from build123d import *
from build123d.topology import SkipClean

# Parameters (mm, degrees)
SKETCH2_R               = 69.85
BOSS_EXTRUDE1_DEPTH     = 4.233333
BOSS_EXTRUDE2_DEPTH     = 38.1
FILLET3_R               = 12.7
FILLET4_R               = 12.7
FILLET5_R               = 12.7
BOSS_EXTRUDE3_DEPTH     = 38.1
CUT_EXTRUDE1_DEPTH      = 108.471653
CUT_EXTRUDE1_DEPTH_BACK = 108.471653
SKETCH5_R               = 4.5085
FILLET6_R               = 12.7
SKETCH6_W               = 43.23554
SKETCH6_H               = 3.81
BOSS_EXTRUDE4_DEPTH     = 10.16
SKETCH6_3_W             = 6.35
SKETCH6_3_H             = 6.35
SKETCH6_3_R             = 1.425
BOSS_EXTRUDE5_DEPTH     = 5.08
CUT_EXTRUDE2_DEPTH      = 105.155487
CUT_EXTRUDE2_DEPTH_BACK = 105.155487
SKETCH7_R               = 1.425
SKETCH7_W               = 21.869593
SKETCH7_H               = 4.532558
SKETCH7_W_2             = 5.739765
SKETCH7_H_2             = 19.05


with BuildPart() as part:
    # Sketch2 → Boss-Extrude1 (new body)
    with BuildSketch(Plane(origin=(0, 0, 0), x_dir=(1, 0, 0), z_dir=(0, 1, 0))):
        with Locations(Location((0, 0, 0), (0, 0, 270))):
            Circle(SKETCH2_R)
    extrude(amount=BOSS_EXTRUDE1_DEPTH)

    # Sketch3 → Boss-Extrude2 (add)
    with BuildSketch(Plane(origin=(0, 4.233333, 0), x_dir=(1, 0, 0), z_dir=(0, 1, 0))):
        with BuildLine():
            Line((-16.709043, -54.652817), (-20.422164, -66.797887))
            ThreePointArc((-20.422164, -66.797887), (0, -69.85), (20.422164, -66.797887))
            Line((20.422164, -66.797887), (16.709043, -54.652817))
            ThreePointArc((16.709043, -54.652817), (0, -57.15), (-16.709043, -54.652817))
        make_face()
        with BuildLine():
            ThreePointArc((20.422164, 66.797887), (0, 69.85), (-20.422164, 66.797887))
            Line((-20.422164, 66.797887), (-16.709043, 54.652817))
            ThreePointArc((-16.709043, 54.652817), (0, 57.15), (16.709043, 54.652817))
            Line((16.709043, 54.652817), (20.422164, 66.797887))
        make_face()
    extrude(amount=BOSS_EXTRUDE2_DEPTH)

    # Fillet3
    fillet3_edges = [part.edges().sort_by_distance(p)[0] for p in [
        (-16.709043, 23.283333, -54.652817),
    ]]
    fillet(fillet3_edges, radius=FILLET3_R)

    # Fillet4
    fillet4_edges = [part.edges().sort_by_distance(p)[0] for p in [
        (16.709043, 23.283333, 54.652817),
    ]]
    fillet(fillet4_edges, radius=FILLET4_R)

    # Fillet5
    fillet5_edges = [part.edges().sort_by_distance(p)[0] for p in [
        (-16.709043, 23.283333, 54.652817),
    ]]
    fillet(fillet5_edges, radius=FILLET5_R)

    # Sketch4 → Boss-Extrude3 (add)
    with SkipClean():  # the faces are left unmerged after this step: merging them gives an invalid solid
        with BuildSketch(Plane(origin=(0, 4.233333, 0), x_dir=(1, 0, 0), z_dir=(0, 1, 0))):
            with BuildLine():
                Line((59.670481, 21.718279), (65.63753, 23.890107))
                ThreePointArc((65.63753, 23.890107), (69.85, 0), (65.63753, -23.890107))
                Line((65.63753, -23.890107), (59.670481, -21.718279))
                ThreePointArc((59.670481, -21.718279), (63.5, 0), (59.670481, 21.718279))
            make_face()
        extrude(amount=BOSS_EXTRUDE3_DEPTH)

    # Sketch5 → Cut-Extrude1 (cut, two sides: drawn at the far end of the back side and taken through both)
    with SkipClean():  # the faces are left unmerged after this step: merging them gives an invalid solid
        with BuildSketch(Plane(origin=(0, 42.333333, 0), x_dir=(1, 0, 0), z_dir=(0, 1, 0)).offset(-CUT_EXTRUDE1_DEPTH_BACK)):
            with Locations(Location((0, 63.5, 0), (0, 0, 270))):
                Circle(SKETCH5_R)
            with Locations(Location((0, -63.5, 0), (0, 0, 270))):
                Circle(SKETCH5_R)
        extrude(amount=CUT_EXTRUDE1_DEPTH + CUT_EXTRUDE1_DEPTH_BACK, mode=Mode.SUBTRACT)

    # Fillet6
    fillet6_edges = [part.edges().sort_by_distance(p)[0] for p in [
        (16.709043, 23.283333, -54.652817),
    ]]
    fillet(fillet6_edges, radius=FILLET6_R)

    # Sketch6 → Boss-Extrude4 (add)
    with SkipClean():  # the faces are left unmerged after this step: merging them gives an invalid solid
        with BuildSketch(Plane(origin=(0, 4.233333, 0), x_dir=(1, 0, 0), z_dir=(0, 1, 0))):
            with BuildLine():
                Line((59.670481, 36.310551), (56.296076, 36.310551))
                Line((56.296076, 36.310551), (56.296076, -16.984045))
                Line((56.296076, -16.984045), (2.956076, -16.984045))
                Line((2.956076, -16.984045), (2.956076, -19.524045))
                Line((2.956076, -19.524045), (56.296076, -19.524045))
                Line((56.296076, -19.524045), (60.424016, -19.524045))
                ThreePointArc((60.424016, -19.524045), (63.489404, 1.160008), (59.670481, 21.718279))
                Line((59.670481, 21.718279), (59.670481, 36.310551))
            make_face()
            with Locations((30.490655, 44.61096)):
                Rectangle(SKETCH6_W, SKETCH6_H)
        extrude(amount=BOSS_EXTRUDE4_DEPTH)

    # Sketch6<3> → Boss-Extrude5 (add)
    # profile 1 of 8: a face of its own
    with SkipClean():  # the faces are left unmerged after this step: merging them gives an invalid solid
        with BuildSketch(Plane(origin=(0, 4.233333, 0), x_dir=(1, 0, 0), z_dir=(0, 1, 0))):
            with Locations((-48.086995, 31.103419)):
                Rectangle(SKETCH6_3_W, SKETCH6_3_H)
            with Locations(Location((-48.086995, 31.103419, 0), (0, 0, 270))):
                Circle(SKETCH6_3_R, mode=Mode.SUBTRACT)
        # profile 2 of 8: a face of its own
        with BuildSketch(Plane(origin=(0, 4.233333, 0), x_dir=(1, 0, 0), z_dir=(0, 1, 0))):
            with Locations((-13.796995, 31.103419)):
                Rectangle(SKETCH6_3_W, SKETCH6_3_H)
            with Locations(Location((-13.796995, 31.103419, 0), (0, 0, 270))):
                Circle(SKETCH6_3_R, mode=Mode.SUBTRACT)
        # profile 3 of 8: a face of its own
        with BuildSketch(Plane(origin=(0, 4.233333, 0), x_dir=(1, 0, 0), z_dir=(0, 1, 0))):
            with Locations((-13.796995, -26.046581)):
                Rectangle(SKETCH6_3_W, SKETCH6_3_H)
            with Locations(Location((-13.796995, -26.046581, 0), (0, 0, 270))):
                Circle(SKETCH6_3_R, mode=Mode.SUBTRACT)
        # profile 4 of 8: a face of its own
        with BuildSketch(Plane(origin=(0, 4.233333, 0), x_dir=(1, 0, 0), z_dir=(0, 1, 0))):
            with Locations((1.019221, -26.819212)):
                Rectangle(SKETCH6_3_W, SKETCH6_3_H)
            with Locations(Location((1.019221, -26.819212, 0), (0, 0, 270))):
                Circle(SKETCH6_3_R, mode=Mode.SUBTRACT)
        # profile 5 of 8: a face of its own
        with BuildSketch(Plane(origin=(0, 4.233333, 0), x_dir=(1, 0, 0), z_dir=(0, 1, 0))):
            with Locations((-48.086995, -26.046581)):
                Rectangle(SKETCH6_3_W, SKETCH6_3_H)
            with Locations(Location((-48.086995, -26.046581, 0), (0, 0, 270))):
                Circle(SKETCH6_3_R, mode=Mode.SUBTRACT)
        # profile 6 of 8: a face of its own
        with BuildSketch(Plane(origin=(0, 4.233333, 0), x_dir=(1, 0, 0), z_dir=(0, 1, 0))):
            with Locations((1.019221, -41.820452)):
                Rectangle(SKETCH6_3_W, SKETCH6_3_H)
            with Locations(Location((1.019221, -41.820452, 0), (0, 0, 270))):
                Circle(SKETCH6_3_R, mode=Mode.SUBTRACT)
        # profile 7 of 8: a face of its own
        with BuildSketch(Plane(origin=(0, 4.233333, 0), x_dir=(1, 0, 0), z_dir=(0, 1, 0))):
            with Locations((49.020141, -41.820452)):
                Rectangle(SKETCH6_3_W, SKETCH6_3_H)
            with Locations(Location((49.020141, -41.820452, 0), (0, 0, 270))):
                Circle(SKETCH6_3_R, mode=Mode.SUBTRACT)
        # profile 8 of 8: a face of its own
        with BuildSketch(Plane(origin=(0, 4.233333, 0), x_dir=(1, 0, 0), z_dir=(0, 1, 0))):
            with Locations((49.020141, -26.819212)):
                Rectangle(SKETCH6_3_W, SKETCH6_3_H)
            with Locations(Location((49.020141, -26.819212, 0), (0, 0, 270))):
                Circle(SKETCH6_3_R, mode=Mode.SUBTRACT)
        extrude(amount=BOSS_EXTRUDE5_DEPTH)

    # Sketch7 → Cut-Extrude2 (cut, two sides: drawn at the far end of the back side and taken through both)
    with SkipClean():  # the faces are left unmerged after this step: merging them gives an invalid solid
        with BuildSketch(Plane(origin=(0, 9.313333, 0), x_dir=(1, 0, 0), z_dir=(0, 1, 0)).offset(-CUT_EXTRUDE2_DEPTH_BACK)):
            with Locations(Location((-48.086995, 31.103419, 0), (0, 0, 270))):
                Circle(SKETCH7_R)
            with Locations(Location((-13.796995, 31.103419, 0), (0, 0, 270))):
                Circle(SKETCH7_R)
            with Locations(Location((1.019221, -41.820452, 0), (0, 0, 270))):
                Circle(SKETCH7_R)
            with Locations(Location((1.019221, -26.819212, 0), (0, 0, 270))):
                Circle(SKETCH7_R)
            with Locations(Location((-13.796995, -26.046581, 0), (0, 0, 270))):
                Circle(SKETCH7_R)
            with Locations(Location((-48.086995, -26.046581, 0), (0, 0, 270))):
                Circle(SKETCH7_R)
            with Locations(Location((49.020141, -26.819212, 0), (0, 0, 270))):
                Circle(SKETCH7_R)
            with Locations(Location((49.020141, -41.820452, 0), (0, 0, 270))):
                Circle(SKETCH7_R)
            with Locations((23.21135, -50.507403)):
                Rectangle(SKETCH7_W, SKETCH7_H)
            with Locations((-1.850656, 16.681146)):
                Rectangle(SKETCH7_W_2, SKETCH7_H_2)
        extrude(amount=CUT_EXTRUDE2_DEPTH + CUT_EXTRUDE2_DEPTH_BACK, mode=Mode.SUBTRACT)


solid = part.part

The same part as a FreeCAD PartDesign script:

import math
import FreeCAD as App
import Part
import Sketcher

V = App.Vector
Q = App.Units.Quantity


def edges_at(feature, points):
    """Names of the edges that pass closest to the given points."""
    edges = feature.Shape.Edges
    near = lambda p: min(range(len(edges)), key=lambda i: edges[i].distToShape(Part.Vertex(*p))[0])
    return sorted({f"Edge{near(p) + 1}" for p in points})


def add_polygon(sketch, points):
    """Adds a closed chain of lines whose ends are joined by coincident constraints."""
    first, n = sketch.GeometryCount, len(points)
    for a, b in zip(points, points[1:] + points[:1]):
        sketch.addGeometry(Part.LineSegment(App.Vector(*a, 0), App.Vector(*b, 0)), False)
    for i in range(n):
        sketch.addConstraint(Sketcher.Constraint("Coincident", first + i, 2, first + (i + 1) % n, 1))

doc = App.newDocument("Part")
body = doc.addObject("PartDesign::Body", "Body")

# Sketch on XZ plane
sketch1 = doc.addObject("Sketcher::SketchObject", "Sketch")
body.addObject(sketch1)
sketch1.AttachmentSupport = (doc.XZ_Plane, [""])
sketch1.MapMode = "FlatFace"
sketch1.addGeometry(Part.Circle(V(0, 0, 0), V(0, 0, 1), 70), False)
sketch1.addConstraint(Sketcher.Constraint("Coincident", 0, 3, -1, 1))
sketch1.addConstraint(Sketcher.Constraint("Diameter", 0, Q("5.5 in")))
pad1 = doc.addObject("PartDesign::Pad", "Pad")
body.addObject(pad1)
pad1.Profile = sketch1
pad1.Length = 4.233333
pad1.Reversed = True

# Sketch on XZ plane
sketch2 = doc.addObject("Sketcher::SketchObject", "Sketch001")
body.addObject(sketch2)
sketch2.AttachmentSupport = (doc.XZ_Plane, [""])
sketch2.MapMode = "FlatFace"
sketch2.AttachmentOffset = App.Placement(V(0, 0, -4.233333), App.Rotation())
sketch2.addGeometry(Part.LineSegment(V(-17, 55, 0), V(-20, 67, 0)), False)
sketch2.addGeometry(Part.ArcOfCircle(Part.Circle(V(0, 0, 0), V(0, 0, 1), 70), math.radians(73), math.radians(107)), False)
sketch2.addGeometry(Part.LineSegment(V(20, 67, 0), V(17, 55, 0)), False)
sketch2.addGeometry(Part.ArcOfCircle(Part.Circle(V(0, 0, 0), V(0, 0, 1), 57), math.radians(73), math.radians(107)), False)
sketch2.addGeometry(Part.ArcOfCircle(Part.Circle(V(0, 0, 0), V(0, 0, 1), 70), math.radians(-107), math.radians(-73)), False)
sketch2.addGeometry(Part.LineSegment(V(-20, -67, 0), V(-17, -55, 0)), False)
sketch2.addGeometry(Part.ArcOfCircle(Part.Circle(V(0, 0, 0), V(0, 0, 1), 57), math.radians(-107), math.radians(-73)), False)
sketch2.addGeometry(Part.LineSegment(V(17, -55, 0), V(20, -67, 0)), False)
sketch2.addConstraint(Sketcher.Constraint("Coincident", 0, 2, 1, 2))
sketch2.addConstraint(Sketcher.Constraint("Coincident", 1, 1, 2, 1))
sketch2.addConstraint(Sketcher.Constraint("Coincident", 2, 2, 3, 1))
sketch2.addConstraint(Sketcher.Constraint("Coincident", 3, 2, 0, 1))
sketch2.addConstraint(Sketcher.Constraint("Coincident", 4, 1, 5, 1))
sketch2.addConstraint(Sketcher.Constraint("Coincident", 5, 2, 6, 1))
sketch2.addConstraint(Sketcher.Constraint("Coincident", 6, 2, 7, 1))
sketch2.addConstraint(Sketcher.Constraint("Coincident", 7, 2, 4, 2))
sketch2.addConstraint(Sketcher.Constraint("Coincident", 1, 3, -1, 1))
sketch2.addConstraint(Sketcher.Constraint("Coincident", 3, 3, -1, 1))
sketch2.addConstraint(Sketcher.Constraint("Coincident", 4, 3, -1, 1))
sketch2.addConstraint(Sketcher.Constraint("Coincident", 6, 3, -1, 1))
sketch2.addConstraint(Sketcher.Constraint("Equal", 1, 4))
sketch2.addConstraint(Sketcher.Constraint("Equal", 3, 6))
sketch2.addConstraint(Sketcher.Constraint("Parallel", 2, 5))
sketch2.addConstraint(Sketcher.Constraint("Parallel", 0, 7))
sketch2.addConstraint(Sketcher.Constraint("Horizontal", 0, 2, 1, 1))
sketch2.addConstraint(Sketcher.Constraint("Horizontal", 2, 2, 3, 2))
sketch2.addConstraint(Sketcher.Constraint("Horizontal", 5, 2, 6, 2))
sketch2.addConstraint(Sketcher.Constraint("Vertical", 0, 2, 4, 1))
sketch2.addConstraint(Sketcher.Constraint("Radius", 1, Q("2.7499999 in")))
sketch2.addConstraint(Sketcher.Constraint("Radius", 3, Q("2.2500002 in")))
sketch2.addConstraint(Sketcher.Constraint("Angle", 0, Q("107.000002 deg")))
sketch2.addConstraint(Sketcher.Constraint("DistanceY", 4, 3, 0, 2, Q("66.797889 mm")))
pad2 = doc.addObject("PartDesign::Pad", "Pad001")
body.addObject(pad2)
pad2.Profile = sketch2
pad2.Length = Q("1.5 in")
pad2.Reversed = True
doc.recompute()

fillet = doc.addObject("PartDesign::Fillet", "Fillet")
body.addObject(fillet)
fillet.Base = (pad2, edges_at(pad2, [(-16.709, 23.283, -54.653)]))
fillet.Radius = Q("0.5 in")
doc.recompute()

fillet2 = doc.addObject("PartDesign::Fillet", "Fillet001")
body.addObject(fillet2)
fillet2.Base = (fillet, edges_at(fillet, [(16.709, 23.283, 54.653)]))
fillet2.Radius = Q("0.5 in")
doc.recompute()

fillet3 = doc.addObject("PartDesign::Fillet", "Fillet002")
body.addObject(fillet3)
fillet3.Base = (fillet2, edges_at(fillet2, [(-16.709, 23.283, 54.653)]))
fillet3.Radius = Q("0.5 in")

# Sketch on XZ plane
sketch3 = doc.addObject("Sketcher::SketchObject", "Sketch002")
body.addObject(sketch3)
sketch3.AttachmentSupport = (doc.XZ_Plane, [""])
sketch3.MapMode = "FlatFace"
sketch3.AttachmentOffset = App.Placement(V(0, 0, -4.233333), App.Rotation())
sketch3.addGeometry(Part.LineSegment(V(66, -24, 0), V(60, -22, 0)), False)
sketch3.addGeometry(Part.ArcOfCircle(Part.Circle(V(0, 0, 0), V(0, 0, 1), 63), math.radians(-20), math.radians(20)), False)
sketch3.addGeometry(Part.LineSegment(V(60, 22, 0), V(66, 24, 0)), False)
sketch3.addGeometry(Part.ArcOfCircle(Part.Circle(V(0, 0, 0), V(0, 0, 1), 70), math.radians(-20), math.radians(20)), False)
sketch3.addConstraint(Sketcher.Constraint("Coincident", 0, 2, 1, 1))
sketch3.addConstraint(Sketcher.Constraint("Coincident", 1, 2, 2, 1))
sketch3.addConstraint(Sketcher.Constraint("Coincident", 2, 2, 3, 2))
sketch3.addConstraint(Sketcher.Constraint("Coincident", 3, 1, 0, 1))
sketch3.addConstraint(Sketcher.Constraint("Coincident", 1, 3, -1, 1))
sketch3.addConstraint(Sketcher.Constraint("Coincident", 3, 3, -1, 1))
sketch3.addConstraint(Sketcher.Constraint("Vertical", 0, 2, 1, 2))
sketch3.addConstraint(Sketcher.Constraint("Vertical", 2, 2, 3, 1))
sketch3.addConstraint(Sketcher.Constraint("Angle", 0, Q("160.000002 deg")))
sketch3.addConstraint(Sketcher.Constraint("Distance", 0, Q("0.25 in")))
sketch3.addConstraint(Sketcher.Constraint("Radius", 1, Q("63.499993 mm")))
sketch3.addConstraint(Sketcher.Constraint("DistanceX", -1, 1, 0, 2, Q("59.670481 mm")))
pad3 = doc.addObject("PartDesign::Pad", "Pad002")
body.addObject(pad3)
pad3.Profile = sketch3
pad3.Length = Q("1.5 in")
pad3.Reversed = True

# Sketch on XZ plane
sketch4 = doc.addObject("Sketcher::SketchObject", "Sketch003")
body.addObject(sketch4)
sketch4.AttachmentSupport = (doc.XZ_Plane, [""])
sketch4.MapMode = "FlatFace"
sketch4.AttachmentOffset = App.Placement(V(0, 0, -42.333333), App.Rotation())
sketch4.addGeometry(Part.Circle(V(0, -63.5, 0), V(0, 0, 1), 4.5), False)
sketch4.addGeometry(Part.Circle(V(0, 63.5, 0), V(0, 0, 1), 4.5), False)
sketch4.addConstraint(Sketcher.Constraint("Equal", 0, 1))
sketch4.addConstraint(Sketcher.Constraint("Symmetric", 0, 3, 1, 3, -1, 1))
sketch4.addConstraint(Sketcher.Constraint("PointOnObject", 0, 3, -2))
sketch4.addConstraint(Sketcher.Constraint("Diameter", 0, Q("0.355 in")))
sketch4.addConstraint(Sketcher.Constraint("DistanceY", 0, 3, 1, 3, Q("5 in")))
pocket1 = doc.addObject("PartDesign::Pocket", "Pocket")
body.addObject(pocket1)
pocket1.Profile = sketch4
pocket1.Type = "ThroughAll"
pocket1.Midplane = True
doc.recompute()

fillet4 = doc.addObject("PartDesign::Fillet", "Fillet003")
body.addObject(fillet4)
fillet4.Base = (pocket1, edges_at(pocket1, [(16.709, 23.283, -54.653)]))
fillet4.Radius = Q("0.5 in")

# Sketch on XZ plane
sketch5 = doc.addObject("Sketcher::SketchObject", "Sketch004")
body.addObject(sketch5)
sketch5.AttachmentSupport = (doc.XZ_Plane, [""])
sketch5.MapMode = "FlatFace"
sketch5.AttachmentOffset = App.Placement(V(0, 0, -4.233333), App.Rotation())
sketch5.addGeometry(Part.LineSegment(V(59.7, -36.3, 0), V(56.3, -36.3, 0)), False)  # 0
sketch5.addGeometry(Part.LineSegment(V(56.3, -36.3, 0), V(56.3, 17, 0)), False)  # 1
sketch5.addGeometry(Part.LineSegment(V(56.3, 17, 0), V(3, 17, 0)), False)  # 2
sketch5.addGeometry(Part.LineSegment(V(3, 17, 0), V(3, 19.5, 0)), False)  # 3
sketch5.addGeometry(Part.LineSegment(V(3, 19.5, 0), V(60.4, 19.5, 0)), False)  # 4
sketch5.addGeometry(Part.ArcOfCircle(Part.Circle(V(0, 0, 0), V(0, 0, 1), 63.5), math.radians(-20), math.radians(18)), False)  # 5
sketch5.addGeometry(Part.LineSegment(V(59.7, -21.7, 0), V(59.7, -36.3, 0)), False)  # 6
add_polygon(sketch5, [(8.9, -46.5), (8.9, -42.7), (52.1, -42.7), (52.1, -46.5)])  # lines 7-10
sketch5.addConstraint(Sketcher.Constraint("Coincident", 0, 2, 1, 1))
sketch5.addConstraint(Sketcher.Constraint("Coincident", 1, 2, 2, 1))
sketch5.addConstraint(Sketcher.Constraint("Coincident", 2, 2, 3, 1))
sketch5.addConstraint(Sketcher.Constraint("Coincident", 3, 2, 4, 1))
sketch5.addConstraint(Sketcher.Constraint("Coincident", 4, 2, 5, 2))
sketch5.addConstraint(Sketcher.Constraint("Coincident", 5, 1, 6, 1))
sketch5.addConstraint(Sketcher.Constraint("Coincident", 6, 2, 0, 1))
sketch5.addConstraint(Sketcher.Constraint("Horizontal", 0))
sketch5.addConstraint(Sketcher.Constraint("Vertical", 1))
sketch5.addConstraint(Sketcher.Constraint("Horizontal", 2))
sketch5.addConstraint(Sketcher.Constraint("Vertical", 3))
sketch5.addConstraint(Sketcher.Constraint("Horizontal", 4))
sketch5.addConstraint(Sketcher.Constraint("Vertical", 6))
sketch5.addConstraint(Sketcher.Constraint("Vertical", 7))
sketch5.addConstraint(Sketcher.Constraint("Horizontal", 8))
sketch5.addConstraint(Sketcher.Constraint("Vertical", 9))
sketch5.addConstraint(Sketcher.Constraint("Horizontal", 10))
sketch5.addConstraint(Sketcher.Constraint("Coincident", 5, 3, -1, 1))
sketch5.addConstraint(Sketcher.Constraint("DistanceX", 2, 2, 2, 1, Q("2.1 in")))
sketch5.addConstraint(Sketcher.Constraint("DistanceY", 3, 1, 3, 2, Q("0.1 in")))
sketch5.addConstraint(Sketcher.Constraint("DistanceY", 7, 1, 7, 2, Q("0.15 in")))
sketch5.addConstraint(Sketcher.Constraint("DistanceY", 7, 2, 2, 2, Q("2.3500002 in")))
sketch5.addConstraint(Sketcher.Constraint("Radius", 5, Q("63.499994 mm")))
sketch5.addConstraint(Sketcher.Constraint("DistanceX", 4, 1, 4, 2, Q("57.46794 mm")))
sketch5.addConstraint(Sketcher.Constraint("DistanceX", 8, 1, 8, 2, Q("43.23554 mm")))
sketch5.addConstraint(Sketcher.Constraint("DistanceY", 6, 2, 6, 1, Q("14.592272 mm")))
sketch5.addConstraint(Sketcher.Constraint("DistanceX", 0, 2, 0, 1, Q("3.374405 mm")))
sketch5.addConstraint(Sketcher.Constraint("DistanceY", 1, 1, 1, 2, Q("53.294596 mm")))
sketch5.addConstraint(Sketcher.Constraint("DistanceX", 5, 3, 7, 2, Q("8.872878 mm")))
pad4 = doc.addObject("PartDesign::Pad", "Pad003")
body.addObject(pad4)
pad4.Profile = sketch5
pad4.Length = Q("0.4 in")
pad4.Reversed = True

# Sketch on XZ plane
sketch6 = doc.addObject("Sketcher::SketchObject", "Sketch005")
body.addObject(sketch6)
sketch6.AttachmentSupport = (doc.XZ_Plane, [""])
sketch6.MapMode = "FlatFace"
sketch6.AttachmentOffset = App.Placement(V(0, 0, -4.233333), App.Rotation())
add_polygon(sketch6, [(-51.3, -34.3), (-51.3, -27.9), (-44.9, -27.9), (-44.9, -34.3)])  # lines 0-3
sketch6.addGeometry(Part.Circle(V(-48.1, -31.1, 0), V(0, 0, 1), 1.4), False)  # 4
add_polygon(sketch6, [(-17, -34.3), (-17, -27.9), (-10.6, -27.9), (-10.6, -34.3)])  # lines 5-8
sketch6.addGeometry(Part.Circle(V(-13.8, -31.1, 0), V(0, 0, 1), 1.4), False)  # 9
add_polygon(sketch6, [(-17, 22.9), (-17, 29.2), (-10.6, 29.2), (-10.6, 22.9)])  # lines 10-13
sketch6.addGeometry(Part.Circle(V(-13.8, 26, 0), V(0, 0, 1), 1.4), False)  # 14
add_polygon(sketch6, [(-2.2, 23.6), (-2.2, 30), (4.2, 30), (4.2, 23.6)])  # lines 15-18
sketch6.addGeometry(Part.Circle(V(1, 26.8, 0), V(0, 0, 1), 1.4), False)  # 19
add_polygon(sketch6, [(-51.3, 22.9), (-51.3, 29.2), (-44.9, 29.2), (-44.9, 22.9)])  # lines 20-23
sketch6.addGeometry(Part.Circle(V(-48.1, 26, 0), V(0, 0, 1), 1.4), False)  # 24
add_polygon(sketch6, [(-2.2, 38.6), (-2.2, 45), (4.2, 45), (4.2, 38.6)])  # lines 25-28
sketch6.addGeometry(Part.Circle(V(1, 41.8, 0), V(0, 0, 1), 1.4), False)  # 29
add_polygon(sketch6, [(45.8, 38.6), (45.8, 45), (52.2, 45), (52.2, 38.6)])  # lines 30-33
sketch6.addGeometry(Part.Circle(V(49, 41.8, 0), V(0, 0, 1), 1.4), False)  # 34
add_polygon(sketch6, [(45.8, 23.6), (45.8, 30), (52.2, 30), (52.2, 23.6)])  # lines 35-38
sketch6.addGeometry(Part.Circle(V(49, 26.8, 0), V(0, 0, 1), 1.4), False)  # 39
sketch6.addConstraint(Sketcher.Constraint("Vertical", 0))
sketch6.addConstraint(Sketcher.Constraint("Horizontal", 1))
sketch6.addConstraint(Sketcher.Constraint("Vertical", 2))
sketch6.addConstraint(Sketcher.Constraint("Horizontal", 3))
sketch6.addConstraint(Sketcher.Constraint("Vertical", 5))
sketch6.addConstraint(Sketcher.Constraint("Horizontal", 6))
sketch6.addConstraint(Sketcher.Constraint("Vertical", 7))
sketch6.addConstraint(Sketcher.Constraint("Horizontal", 8))
sketch6.addConstraint(Sketcher.Constraint("Vertical", 10))
sketch6.addConstraint(Sketcher.Constraint("Horizontal", 11))
sketch6.addConstraint(Sketcher.Constraint("Vertical", 12))
sketch6.addConstraint(Sketcher.Constraint("Horizontal", 13))
sketch6.addConstraint(Sketcher.Constraint("Vertical", 15))
sketch6.addConstraint(Sketcher.Constraint("Horizontal", 16))
sketch6.addConstraint(Sketcher.Constraint("Vertical", 17))
sketch6.addConstraint(Sketcher.Constraint("Horizontal", 18))
sketch6.addConstraint(Sketcher.Constraint("Vertical", 20))
sketch6.addConstraint(Sketcher.Constraint("Horizontal", 21))
sketch6.addConstraint(Sketcher.Constraint("Vertical", 22))
sketch6.addConstraint(Sketcher.Constraint("Horizontal", 23))
sketch6.addConstraint(Sketcher.Constraint("Vertical", 25))
sketch6.addConstraint(Sketcher.Constraint("Horizontal", 26))
sketch6.addConstraint(Sketcher.Constraint("Vertical", 27))
sketch6.addConstraint(Sketcher.Constraint("Horizontal", 28))
sketch6.addConstraint(Sketcher.Constraint("Vertical", 30))
sketch6.addConstraint(Sketcher.Constraint("Horizontal", 31))
sketch6.addConstraint(Sketcher.Constraint("Vertical", 32))
sketch6.addConstraint(Sketcher.Constraint("Horizontal", 33))
sketch6.addConstraint(Sketcher.Constraint("Vertical", 35))
sketch6.addConstraint(Sketcher.Constraint("Horizontal", 36))
sketch6.addConstraint(Sketcher.Constraint("Vertical", 37))
sketch6.addConstraint(Sketcher.Constraint("Horizontal", 38))
sketch6.addConstraint(Sketcher.Constraint("Equal", 4, 9))
sketch6.addConstraint(Sketcher.Constraint("Equal", 9, 14))
sketch6.addConstraint(Sketcher.Constraint("Equal", 14, 19))
sketch6.addConstraint(Sketcher.Constraint("Equal", 19, 24))
sketch6.addConstraint(Sketcher.Constraint("Equal", 24, 29))
sketch6.addConstraint(Sketcher.Constraint("Equal", 29, 34))
sketch6.addConstraint(Sketcher.Constraint("Equal", 34, 39))
sketch6.addConstraint(Sketcher.Constraint("Horizontal", 4, 3, 9, 3))
sketch6.addConstraint(Sketcher.Constraint("Horizontal", 14, 3, 24, 3))
sketch6.addConstraint(Sketcher.Constraint("Horizontal", 29, 3, 34, 3))
sketch6.addConstraint(Sketcher.Constraint("Horizontal", 19, 3, 39, 3))
sketch6.addConstraint(Sketcher.Constraint("Horizontal", 1, 2, 5, 2))
sketch6.addConstraint(Sketcher.Constraint("Horizontal", 3, 2, 7, 2))
sketch6.addConstraint(Sketcher.Constraint("Horizontal", 11, 2, 20, 2))
sketch6.addConstraint(Sketcher.Constraint("Horizontal", 13, 2, 22, 2))
sketch6.addConstraint(Sketcher.Constraint("Horizontal", 26, 2, 30, 2))
sketch6.addConstraint(Sketcher.Constraint("Horizontal", 28, 2, 32, 2))
sketch6.addConstraint(Sketcher.Constraint("Horizontal", 16, 2, 35, 2))
sketch6.addConstraint(Sketcher.Constraint("Horizontal", 18, 2, 37, 2))
sketch6.addConstraint(Sketcher.Constraint("Vertical", 9, 3, 14, 3))
sketch6.addConstraint(Sketcher.Constraint("Vertical", 4, 3, 24, 3))
sketch6.addConstraint(Sketcher.Constraint("Vertical", 19, 3, 29, 3))
sketch6.addConstraint(Sketcher.Constraint("Vertical", 34, 3, 39, 3))
sketch6.addConstraint(Sketcher.Constraint("Vertical", 8, 2, 10, 2))
sketch6.addConstraint(Sketcher.Constraint("Vertical", 7, 2, 11, 2))
sketch6.addConstraint(Sketcher.Constraint("Vertical", 3, 2, 20, 2))
sketch6.addConstraint(Sketcher.Constraint("Vertical", 2, 2, 21, 2))
sketch6.addConstraint(Sketcher.Constraint("Vertical", 18, 2, 25, 2))
sketch6.addConstraint(Sketcher.Constraint("Vertical", 17, 2, 26, 2))
sketch6.addConstraint(Sketcher.Constraint("Vertical", 33, 2, 35, 2))
sketch6.addConstraint(Sketcher.Constraint("Vertical", 32, 2, 36, 2))
sketch6.addConstraint(Sketcher.Constraint("Equal", 3, 6))
sketch6.addConstraint(Sketcher.Constraint("Equal", 13, 16))
sketch6.addConstraint(Sketcher.Constraint("Equal", 28, 31))
sketch6.addConstraint(Sketcher.Constraint("Equal", 38, 0))
sketch6.addConstraint(Sketcher.Constraint("Equal", 7, 10))
sketch6.addConstraint(Sketcher.Constraint("Equal", 12, 15))
sketch6.addConstraint(Sketcher.Constraint("Equal", 22, 25))
sketch6.addConstraint(Sketcher.Constraint("DistanceX", 1, 1, 1, 2, Q("0.25 in")))
sketch6.addConstraint(Sketcher.Constraint("DistanceX", 1, 2, 5, 2, Q("1.1 in")))
sketch6.addConstraint(Sketcher.Constraint("Diameter", 4, Q("2.85 mm")))
sketch6.addConstraint(Sketcher.Constraint("DistanceX", 4, 3, 9, 3, Q("1.35 in")))
sketch6.addConstraint(Sketcher.Constraint("DistanceY", 9, 3, 14, 3, Q("2.25 in")))
sketch6.addConstraint(Sketcher.Constraint("DistanceY", 5, 2, 10, 2, Q("2.25 in")))
sketch6.addConstraint(Sketcher.Constraint("DistanceX", 0, 2, 4, 3, Q("0.125 in")))
sketch6.addConstraint(Sketcher.Constraint("DistanceY", 4, 3, 0, 2, Q("0.125 in")))
sketch6.addConstraint(Sketcher.Constraint("DistanceX", 15, 2, 19, 3, Q("0.125 in")))
sketch6.addConstraint(Sketcher.Constraint("DistanceY", 19, 3, 15, 2, Q("0.125 in")))
sketch6.addConstraint(Sketcher.Constraint("DistanceY", 29, 3, 25, 2, Q("0.125 in")))
sketch6.addConstraint(Sketcher.Constraint("DistanceX", 30, 2, 34, 3, Q("0.125 in")))
sketch6.addConstraint(Sketcher.Constraint("DistanceY", 19, 3, 29, 3, Q("0.5906 in")))
sketch6.addConstraint(Sketcher.Constraint("DistanceX", 29, 3, 34, 3, Q("1.8898 in")))
sketch6.addConstraint(Sketcher.Constraint("DistanceY", 4, 3, -1, 1, Q("31.103419 mm")))
sketch6.addConstraint(Sketcher.Constraint("DistanceX", -1, 1, 19, 3, Q("1.019221 mm")))
sketch6.addConstraint(Sketcher.Constraint("DistanceY", -1, 1, 19, 3, Q("26.819212 mm")))
sketch6.addConstraint(Sketcher.Constraint("DistanceX", 4, 3, -1, 1, Q("48.086995 mm")))
pad5 = doc.addObject("PartDesign::Pad", "Pad004")
body.addObject(pad5)
pad5.Profile = sketch6
pad5.Length = Q("0.2 in")
pad5.Reversed = True

# Sketch on XZ plane
sketch7 = doc.addObject("Sketcher::SketchObject", "Sketch006")
body.addObject(sketch7)
sketch7.AttachmentSupport = (doc.XZ_Plane, [""])
sketch7.MapMode = "FlatFace"
sketch7.AttachmentOffset = App.Placement(V(0, 0, -9.313333), App.Rotation())
sketch7.addGeometry(Part.Circle(V(-48.1, -31.1, 0), V(0, 0, 1), 1.4), False)  # 0
sketch7.addGeometry(Part.Circle(V(-13.8, -31.1, 0), V(0, 0, 1), 1.4), False)  # 1
sketch7.addGeometry(Part.Circle(V(1, 41.8, 0), V(0, 0, 1), 1.4), False)  # 2
sketch7.addGeometry(Part.Circle(V(1, 26.8, 0), V(0, 0, 1), 1.4), False)  # 3
sketch7.addGeometry(Part.Circle(V(-13.8, 26, 0), V(0, 0, 1), 1.4), False)  # 4
sketch7.addGeometry(Part.Circle(V(-48.1, 26, 0), V(0, 0, 1), 1.4), False)  # 5
sketch7.addGeometry(Part.Circle(V(49, 26.8, 0), V(0, 0, 1), 1.4), False)  # 6
sketch7.addGeometry(Part.Circle(V(49, 41.8, 0), V(0, 0, 1), 1.4), False)  # 7
add_polygon(sketch7, [(12.3, 48.2), (12.3, 52.8), (34.1, 52.8), (34.1, 48.2)])  # lines 8-11
add_polygon(sketch7, [(-4.7, -26.2), (-4.7, -7.2), (1, -7.2), (1, -26.2)])  # lines 12-15
sketch7.addConstraint(Sketcher.Constraint("Vertical", 8))
sketch7.addConstraint(Sketcher.Constraint("Horizontal", 9))
sketch7.addConstraint(Sketcher.Constraint("Vertical", 10))
sketch7.addConstraint(Sketcher.Constraint("Horizontal", 11))
sketch7.addConstraint(Sketcher.Constraint("Vertical", 12))
sketch7.addConstraint(Sketcher.Constraint("Horizontal", 13))
sketch7.addConstraint(Sketcher.Constraint("Vertical", 14))
sketch7.addConstraint(Sketcher.Constraint("Horizontal", 15))
sketch7.addConstraint(Sketcher.Constraint("Equal", 0, 1))
sketch7.addConstraint(Sketcher.Constraint("Equal", 1, 2))
sketch7.addConstraint(Sketcher.Constraint("Equal", 2, 3))
sketch7.addConstraint(Sketcher.Constraint("Equal", 3, 4))
sketch7.addConstraint(Sketcher.Constraint("Equal", 4, 5))
sketch7.addConstraint(Sketcher.Constraint("Equal", 5, 6))
sketch7.addConstraint(Sketcher.Constraint("Equal", 6, 7))
sketch7.addConstraint(Sketcher.Constraint("Horizontal", 0, 3, 1, 3))
sketch7.addConstraint(Sketcher.Constraint("Horizontal", 4, 3, 5, 3))
sketch7.addConstraint(Sketcher.Constraint("Horizontal", 3, 3, 6, 3))
sketch7.addConstraint(Sketcher.Constraint("Horizontal", 2, 3, 7, 3))
sketch7.addConstraint(Sketcher.Constraint("Vertical", 2, 3, 3, 3))
sketch7.addConstraint(Sketcher.Constraint("Vertical", 1, 3, 4, 3))
sketch7.addConstraint(Sketcher.Constraint("Vertical", 0, 3, 5, 3))
sketch7.addConstraint(Sketcher.Constraint("Vertical", 6, 3, 7, 3))
sketch7.addConstraint(Sketcher.Constraint("DistanceY", 12, 1, 12, 2, Q("0.75 in")))
sketch7.addConstraint(Sketcher.Constraint("Diameter", 0, Q("2.85 mm")))
sketch7.addConstraint(Sketcher.Constraint("DistanceX", 0, 3, 1, 3, Q("1.35 in")))
sketch7.addConstraint(Sketcher.Constraint("DistanceY", 1, 3, 4, 3, Q("2.25 in")))
sketch7.addConstraint(Sketcher.Constraint("DistanceY", 3, 3, 2, 3, Q("0.5906 in")))
sketch7.addConstraint(Sketcher.Constraint("DistanceX", 3, 3, 6, 3, Q("1.8898 in")))
sketch7.addConstraint(Sketcher.Constraint("DistanceY", 8, 1, 8, 2, Q("4.532558 mm")))
sketch7.addConstraint(Sketcher.Constraint("DistanceY", 4, 3, 8, 2, Q("26.727101 mm")))
sketch7.addConstraint(Sketcher.Constraint("DistanceY", 12, 2, 2, 3, Q("48.976598 mm")))
sketch7.addConstraint(Sketcher.Constraint("DistanceX", 9, 1, 9, 2, Q("21.869593 mm")))
sketch7.addConstraint(Sketcher.Constraint("DistanceX", 13, 1, 13, 2, Q("5.739765 mm")))
sketch7.addConstraint(Sketcher.Constraint("DistanceY", 0, 3, -1, 1, Q("31.103419 mm")))
sketch7.addConstraint(Sketcher.Constraint("DistanceX", -1, 1, 2, 3, Q("1.019221 mm")))
sketch7.addConstraint(Sketcher.Constraint("DistanceY", -1, 1, 3, 3, Q("26.819212 mm")))
sketch7.addConstraint(Sketcher.Constraint("DistanceX", 12, 2, -1, 1, Q("4.720538 mm")))
sketch7.addConstraint(Sketcher.Constraint("DistanceX", 4, 3, 8, 2, Q("26.073549 mm")))
sketch7.addConstraint(Sketcher.Constraint("DistanceX", 1, 3, 13, 2, Q("14.816222 mm")))
pocket2 = doc.addObject("PartDesign::Pocket", "Pocket001")
body.addObject(pocket2)
pocket2.Profile = sketch7
pocket2.Type = "ThroughAll"
pocket2.Midplane = True

doc.recompute()
